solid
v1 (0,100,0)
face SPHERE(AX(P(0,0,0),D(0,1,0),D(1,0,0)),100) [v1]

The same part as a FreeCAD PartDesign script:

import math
import FreeCAD as App
import Part
import Sketcher

doc = App.newDocument("Part")
body = doc.addObject("PartDesign::Body", "Body")

# Sketch on XY plane
sketch1 = doc.addObject("Sketcher::SketchObject", "Sketch")
body.addObject(sketch1)
sketch1.AttachmentSupport = (doc.XY_Plane, [""])
sketch1.MapMode = "FlatFace"
sketch1.addGeometry(Part.LineSegment(App.Vector(0, 100, 0), App.Vector(0, -100, 0)), False)
sketch1.addGeometry(Part.ArcOfCircle(Part.Circle(App.Vector(0, 0, 0), App.Vector(0, 0, 1), 100), math.radians(-90), math.radians(90)), False)
sketch1.addConstraint(Sketcher.Constraint("Coincident", 0, 1, 1, 2))
sketch1.addConstraint(Sketcher.Constraint("Coincident", 1, 1, 0, 2))
sketch1.addConstraint(Sketcher.Constraint("Vertical", 0))
sketch1.addConstraint(Sketcher.Constraint("Coincident", 1, 3, -1, 1))
sketch1.addConstraint(Sketcher.Constraint("PointOnObject", 0, 1, -2))
sketch1.addConstraint(Sketcher.Constraint("Radius", 1, 100.0))
revolution = doc.addObject("PartDesign::Revolution", "Revolution")
body.addObject(revolution)
revolution.Profile = sketch1
revolution.ReferenceAxis = (sketch1, ["V_Axis"])
revolution.Angle = 360

doc.recompute()
